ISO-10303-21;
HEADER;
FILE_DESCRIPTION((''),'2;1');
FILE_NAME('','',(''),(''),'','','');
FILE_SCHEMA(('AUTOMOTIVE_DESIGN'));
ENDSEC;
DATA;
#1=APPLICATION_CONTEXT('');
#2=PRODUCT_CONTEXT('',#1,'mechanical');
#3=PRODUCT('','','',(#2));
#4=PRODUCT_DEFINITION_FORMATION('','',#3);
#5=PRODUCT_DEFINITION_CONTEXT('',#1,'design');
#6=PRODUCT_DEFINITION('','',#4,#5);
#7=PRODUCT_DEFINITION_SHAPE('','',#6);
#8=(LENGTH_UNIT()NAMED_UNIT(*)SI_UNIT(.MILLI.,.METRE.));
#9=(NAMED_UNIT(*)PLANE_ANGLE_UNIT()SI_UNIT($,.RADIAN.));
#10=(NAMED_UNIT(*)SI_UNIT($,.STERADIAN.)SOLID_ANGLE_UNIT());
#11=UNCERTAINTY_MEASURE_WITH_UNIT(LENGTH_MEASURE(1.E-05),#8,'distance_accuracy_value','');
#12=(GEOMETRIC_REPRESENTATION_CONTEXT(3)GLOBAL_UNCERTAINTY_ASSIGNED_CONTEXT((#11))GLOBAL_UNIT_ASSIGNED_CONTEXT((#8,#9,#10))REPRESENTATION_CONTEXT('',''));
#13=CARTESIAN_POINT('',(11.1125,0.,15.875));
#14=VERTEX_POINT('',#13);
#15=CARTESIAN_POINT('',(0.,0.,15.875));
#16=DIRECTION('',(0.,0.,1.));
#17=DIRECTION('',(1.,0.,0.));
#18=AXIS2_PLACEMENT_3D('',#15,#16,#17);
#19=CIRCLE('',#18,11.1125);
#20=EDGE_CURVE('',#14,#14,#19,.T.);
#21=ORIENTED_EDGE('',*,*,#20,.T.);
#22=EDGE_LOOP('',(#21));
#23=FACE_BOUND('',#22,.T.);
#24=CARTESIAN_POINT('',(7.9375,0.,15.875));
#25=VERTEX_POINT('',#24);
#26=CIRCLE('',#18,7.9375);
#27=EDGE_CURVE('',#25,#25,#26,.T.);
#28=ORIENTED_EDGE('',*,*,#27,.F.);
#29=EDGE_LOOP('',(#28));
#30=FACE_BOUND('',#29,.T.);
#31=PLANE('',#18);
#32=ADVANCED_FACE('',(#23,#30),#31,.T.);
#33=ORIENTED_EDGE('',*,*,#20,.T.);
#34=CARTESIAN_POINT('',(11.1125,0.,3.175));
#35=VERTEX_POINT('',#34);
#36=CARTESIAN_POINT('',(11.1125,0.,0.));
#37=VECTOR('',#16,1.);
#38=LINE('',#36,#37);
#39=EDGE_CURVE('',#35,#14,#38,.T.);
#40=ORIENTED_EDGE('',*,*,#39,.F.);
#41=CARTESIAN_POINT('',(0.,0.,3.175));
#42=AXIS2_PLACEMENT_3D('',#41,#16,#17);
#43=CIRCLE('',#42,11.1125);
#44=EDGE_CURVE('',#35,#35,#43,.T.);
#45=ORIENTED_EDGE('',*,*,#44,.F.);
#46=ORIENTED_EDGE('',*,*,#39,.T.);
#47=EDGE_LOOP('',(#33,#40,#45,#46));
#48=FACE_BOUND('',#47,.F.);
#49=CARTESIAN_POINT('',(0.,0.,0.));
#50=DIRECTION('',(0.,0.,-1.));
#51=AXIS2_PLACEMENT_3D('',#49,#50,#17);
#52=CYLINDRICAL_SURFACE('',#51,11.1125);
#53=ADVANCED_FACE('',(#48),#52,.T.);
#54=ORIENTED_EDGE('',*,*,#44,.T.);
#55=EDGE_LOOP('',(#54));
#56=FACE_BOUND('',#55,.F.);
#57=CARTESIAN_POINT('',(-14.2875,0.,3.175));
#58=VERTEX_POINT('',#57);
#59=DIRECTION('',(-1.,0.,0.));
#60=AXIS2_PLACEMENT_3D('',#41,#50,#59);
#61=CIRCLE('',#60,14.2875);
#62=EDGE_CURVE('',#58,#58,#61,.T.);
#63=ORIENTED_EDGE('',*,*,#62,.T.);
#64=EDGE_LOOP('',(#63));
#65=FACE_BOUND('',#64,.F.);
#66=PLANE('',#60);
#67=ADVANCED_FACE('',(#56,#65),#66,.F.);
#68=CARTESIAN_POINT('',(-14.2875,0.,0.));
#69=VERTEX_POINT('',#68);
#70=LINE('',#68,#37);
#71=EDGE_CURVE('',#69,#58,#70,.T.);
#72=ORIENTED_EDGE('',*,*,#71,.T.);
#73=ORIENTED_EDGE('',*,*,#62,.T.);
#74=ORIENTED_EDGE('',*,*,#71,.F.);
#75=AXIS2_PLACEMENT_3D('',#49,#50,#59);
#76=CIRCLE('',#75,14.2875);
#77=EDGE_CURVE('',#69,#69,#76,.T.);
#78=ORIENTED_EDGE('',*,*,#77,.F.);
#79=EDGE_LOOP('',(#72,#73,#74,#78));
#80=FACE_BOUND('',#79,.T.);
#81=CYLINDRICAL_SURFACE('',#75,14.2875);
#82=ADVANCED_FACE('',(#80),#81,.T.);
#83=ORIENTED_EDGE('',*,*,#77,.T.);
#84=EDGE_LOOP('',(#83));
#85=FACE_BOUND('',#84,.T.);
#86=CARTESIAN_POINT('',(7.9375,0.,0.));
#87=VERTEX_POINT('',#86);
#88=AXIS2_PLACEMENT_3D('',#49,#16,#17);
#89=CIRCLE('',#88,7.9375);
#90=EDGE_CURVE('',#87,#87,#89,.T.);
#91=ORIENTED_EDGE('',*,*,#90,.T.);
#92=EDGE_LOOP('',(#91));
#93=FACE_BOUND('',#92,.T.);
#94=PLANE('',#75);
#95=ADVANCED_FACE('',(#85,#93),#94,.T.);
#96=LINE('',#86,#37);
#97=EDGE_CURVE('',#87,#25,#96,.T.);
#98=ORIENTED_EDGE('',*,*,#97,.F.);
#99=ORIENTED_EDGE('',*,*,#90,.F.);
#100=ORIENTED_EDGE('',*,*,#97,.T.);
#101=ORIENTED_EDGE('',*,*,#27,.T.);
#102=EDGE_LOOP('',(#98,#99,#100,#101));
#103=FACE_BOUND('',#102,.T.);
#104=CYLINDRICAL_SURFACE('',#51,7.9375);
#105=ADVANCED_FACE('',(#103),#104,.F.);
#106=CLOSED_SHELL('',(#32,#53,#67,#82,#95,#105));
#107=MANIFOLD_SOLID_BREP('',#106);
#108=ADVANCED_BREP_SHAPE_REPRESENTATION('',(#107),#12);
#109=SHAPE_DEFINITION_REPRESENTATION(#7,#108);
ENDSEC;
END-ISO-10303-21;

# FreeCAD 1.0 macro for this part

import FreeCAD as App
import Part
import Sketcher
from FreeCAD import Vector
Q = App.Units.Quantity

doc = App.newDocument("Part")
body = doc.addObject("PartDesign::Body", "Body")

# Sketch on XY plane
sketch1 = body.newObject("Sketcher::SketchObject", "Sketch")
sketch1.AttachmentSupport = (doc.getObject("XY_Plane"), [""])
sketch1.MapMode = "FlatFace"
sketch1.addGeometry([
    Part.Circle(Vector(0, 0, 0), Vector(0, 0, 1), 11.1125),
    Part.Circle(Vector(0, 0, 0), Vector(0, 0, 1), 7.9375),
], False)
sketch1.addConstraint([
    Sketcher.Constraint("Coincident", 0, 3, -1, 1),
    Sketcher.Constraint("Coincident", 1, 3, -1, 1),
    Sketcher.Constraint("Diameter", 0, Q("0.875 in")),
    Sketcher.Constraint("Diameter", 1, Q("0.625 in")),
])
pad1 = body.newObject("PartDesign::Pad", "Pad")
pad1.Profile = sketch1
pad1.Length = Q("0.625 in")

# Sketch on XY plane
sketch2 = body.newObject("Sketcher::SketchObject", "Sketch001")
sketch2.AttachmentSupport = (doc.getObject("XY_Plane"), [""])
sketch2.MapMode = "FlatFace"
sketch2.addGeometry([
    Part.Circle(Vector(0, 0, 0), Vector(0, 0, 1), 14.2875),
    Part.Circle(Vector(0, 0, 0), Vector(0, 0, 1), 11.1125),
], False)
sketch2.addConstraint([
    Sketcher.Constraint("Coincident", 0, 3, -1, 1),
    Sketcher.Constraint("Coincident", 1, 3, -1, 1),
    Sketcher.Constraint("Diameter", 0, Q("1.125 in")),
    Sketcher.Constraint("Diameter", 1, Q("0.875 in")),
])
pad2 = body.newObject("PartDesign::Pad", "Pad001")
pad2.Profile = sketch2
pad2.Length = Q("0.125 in")

doc.recompute()
